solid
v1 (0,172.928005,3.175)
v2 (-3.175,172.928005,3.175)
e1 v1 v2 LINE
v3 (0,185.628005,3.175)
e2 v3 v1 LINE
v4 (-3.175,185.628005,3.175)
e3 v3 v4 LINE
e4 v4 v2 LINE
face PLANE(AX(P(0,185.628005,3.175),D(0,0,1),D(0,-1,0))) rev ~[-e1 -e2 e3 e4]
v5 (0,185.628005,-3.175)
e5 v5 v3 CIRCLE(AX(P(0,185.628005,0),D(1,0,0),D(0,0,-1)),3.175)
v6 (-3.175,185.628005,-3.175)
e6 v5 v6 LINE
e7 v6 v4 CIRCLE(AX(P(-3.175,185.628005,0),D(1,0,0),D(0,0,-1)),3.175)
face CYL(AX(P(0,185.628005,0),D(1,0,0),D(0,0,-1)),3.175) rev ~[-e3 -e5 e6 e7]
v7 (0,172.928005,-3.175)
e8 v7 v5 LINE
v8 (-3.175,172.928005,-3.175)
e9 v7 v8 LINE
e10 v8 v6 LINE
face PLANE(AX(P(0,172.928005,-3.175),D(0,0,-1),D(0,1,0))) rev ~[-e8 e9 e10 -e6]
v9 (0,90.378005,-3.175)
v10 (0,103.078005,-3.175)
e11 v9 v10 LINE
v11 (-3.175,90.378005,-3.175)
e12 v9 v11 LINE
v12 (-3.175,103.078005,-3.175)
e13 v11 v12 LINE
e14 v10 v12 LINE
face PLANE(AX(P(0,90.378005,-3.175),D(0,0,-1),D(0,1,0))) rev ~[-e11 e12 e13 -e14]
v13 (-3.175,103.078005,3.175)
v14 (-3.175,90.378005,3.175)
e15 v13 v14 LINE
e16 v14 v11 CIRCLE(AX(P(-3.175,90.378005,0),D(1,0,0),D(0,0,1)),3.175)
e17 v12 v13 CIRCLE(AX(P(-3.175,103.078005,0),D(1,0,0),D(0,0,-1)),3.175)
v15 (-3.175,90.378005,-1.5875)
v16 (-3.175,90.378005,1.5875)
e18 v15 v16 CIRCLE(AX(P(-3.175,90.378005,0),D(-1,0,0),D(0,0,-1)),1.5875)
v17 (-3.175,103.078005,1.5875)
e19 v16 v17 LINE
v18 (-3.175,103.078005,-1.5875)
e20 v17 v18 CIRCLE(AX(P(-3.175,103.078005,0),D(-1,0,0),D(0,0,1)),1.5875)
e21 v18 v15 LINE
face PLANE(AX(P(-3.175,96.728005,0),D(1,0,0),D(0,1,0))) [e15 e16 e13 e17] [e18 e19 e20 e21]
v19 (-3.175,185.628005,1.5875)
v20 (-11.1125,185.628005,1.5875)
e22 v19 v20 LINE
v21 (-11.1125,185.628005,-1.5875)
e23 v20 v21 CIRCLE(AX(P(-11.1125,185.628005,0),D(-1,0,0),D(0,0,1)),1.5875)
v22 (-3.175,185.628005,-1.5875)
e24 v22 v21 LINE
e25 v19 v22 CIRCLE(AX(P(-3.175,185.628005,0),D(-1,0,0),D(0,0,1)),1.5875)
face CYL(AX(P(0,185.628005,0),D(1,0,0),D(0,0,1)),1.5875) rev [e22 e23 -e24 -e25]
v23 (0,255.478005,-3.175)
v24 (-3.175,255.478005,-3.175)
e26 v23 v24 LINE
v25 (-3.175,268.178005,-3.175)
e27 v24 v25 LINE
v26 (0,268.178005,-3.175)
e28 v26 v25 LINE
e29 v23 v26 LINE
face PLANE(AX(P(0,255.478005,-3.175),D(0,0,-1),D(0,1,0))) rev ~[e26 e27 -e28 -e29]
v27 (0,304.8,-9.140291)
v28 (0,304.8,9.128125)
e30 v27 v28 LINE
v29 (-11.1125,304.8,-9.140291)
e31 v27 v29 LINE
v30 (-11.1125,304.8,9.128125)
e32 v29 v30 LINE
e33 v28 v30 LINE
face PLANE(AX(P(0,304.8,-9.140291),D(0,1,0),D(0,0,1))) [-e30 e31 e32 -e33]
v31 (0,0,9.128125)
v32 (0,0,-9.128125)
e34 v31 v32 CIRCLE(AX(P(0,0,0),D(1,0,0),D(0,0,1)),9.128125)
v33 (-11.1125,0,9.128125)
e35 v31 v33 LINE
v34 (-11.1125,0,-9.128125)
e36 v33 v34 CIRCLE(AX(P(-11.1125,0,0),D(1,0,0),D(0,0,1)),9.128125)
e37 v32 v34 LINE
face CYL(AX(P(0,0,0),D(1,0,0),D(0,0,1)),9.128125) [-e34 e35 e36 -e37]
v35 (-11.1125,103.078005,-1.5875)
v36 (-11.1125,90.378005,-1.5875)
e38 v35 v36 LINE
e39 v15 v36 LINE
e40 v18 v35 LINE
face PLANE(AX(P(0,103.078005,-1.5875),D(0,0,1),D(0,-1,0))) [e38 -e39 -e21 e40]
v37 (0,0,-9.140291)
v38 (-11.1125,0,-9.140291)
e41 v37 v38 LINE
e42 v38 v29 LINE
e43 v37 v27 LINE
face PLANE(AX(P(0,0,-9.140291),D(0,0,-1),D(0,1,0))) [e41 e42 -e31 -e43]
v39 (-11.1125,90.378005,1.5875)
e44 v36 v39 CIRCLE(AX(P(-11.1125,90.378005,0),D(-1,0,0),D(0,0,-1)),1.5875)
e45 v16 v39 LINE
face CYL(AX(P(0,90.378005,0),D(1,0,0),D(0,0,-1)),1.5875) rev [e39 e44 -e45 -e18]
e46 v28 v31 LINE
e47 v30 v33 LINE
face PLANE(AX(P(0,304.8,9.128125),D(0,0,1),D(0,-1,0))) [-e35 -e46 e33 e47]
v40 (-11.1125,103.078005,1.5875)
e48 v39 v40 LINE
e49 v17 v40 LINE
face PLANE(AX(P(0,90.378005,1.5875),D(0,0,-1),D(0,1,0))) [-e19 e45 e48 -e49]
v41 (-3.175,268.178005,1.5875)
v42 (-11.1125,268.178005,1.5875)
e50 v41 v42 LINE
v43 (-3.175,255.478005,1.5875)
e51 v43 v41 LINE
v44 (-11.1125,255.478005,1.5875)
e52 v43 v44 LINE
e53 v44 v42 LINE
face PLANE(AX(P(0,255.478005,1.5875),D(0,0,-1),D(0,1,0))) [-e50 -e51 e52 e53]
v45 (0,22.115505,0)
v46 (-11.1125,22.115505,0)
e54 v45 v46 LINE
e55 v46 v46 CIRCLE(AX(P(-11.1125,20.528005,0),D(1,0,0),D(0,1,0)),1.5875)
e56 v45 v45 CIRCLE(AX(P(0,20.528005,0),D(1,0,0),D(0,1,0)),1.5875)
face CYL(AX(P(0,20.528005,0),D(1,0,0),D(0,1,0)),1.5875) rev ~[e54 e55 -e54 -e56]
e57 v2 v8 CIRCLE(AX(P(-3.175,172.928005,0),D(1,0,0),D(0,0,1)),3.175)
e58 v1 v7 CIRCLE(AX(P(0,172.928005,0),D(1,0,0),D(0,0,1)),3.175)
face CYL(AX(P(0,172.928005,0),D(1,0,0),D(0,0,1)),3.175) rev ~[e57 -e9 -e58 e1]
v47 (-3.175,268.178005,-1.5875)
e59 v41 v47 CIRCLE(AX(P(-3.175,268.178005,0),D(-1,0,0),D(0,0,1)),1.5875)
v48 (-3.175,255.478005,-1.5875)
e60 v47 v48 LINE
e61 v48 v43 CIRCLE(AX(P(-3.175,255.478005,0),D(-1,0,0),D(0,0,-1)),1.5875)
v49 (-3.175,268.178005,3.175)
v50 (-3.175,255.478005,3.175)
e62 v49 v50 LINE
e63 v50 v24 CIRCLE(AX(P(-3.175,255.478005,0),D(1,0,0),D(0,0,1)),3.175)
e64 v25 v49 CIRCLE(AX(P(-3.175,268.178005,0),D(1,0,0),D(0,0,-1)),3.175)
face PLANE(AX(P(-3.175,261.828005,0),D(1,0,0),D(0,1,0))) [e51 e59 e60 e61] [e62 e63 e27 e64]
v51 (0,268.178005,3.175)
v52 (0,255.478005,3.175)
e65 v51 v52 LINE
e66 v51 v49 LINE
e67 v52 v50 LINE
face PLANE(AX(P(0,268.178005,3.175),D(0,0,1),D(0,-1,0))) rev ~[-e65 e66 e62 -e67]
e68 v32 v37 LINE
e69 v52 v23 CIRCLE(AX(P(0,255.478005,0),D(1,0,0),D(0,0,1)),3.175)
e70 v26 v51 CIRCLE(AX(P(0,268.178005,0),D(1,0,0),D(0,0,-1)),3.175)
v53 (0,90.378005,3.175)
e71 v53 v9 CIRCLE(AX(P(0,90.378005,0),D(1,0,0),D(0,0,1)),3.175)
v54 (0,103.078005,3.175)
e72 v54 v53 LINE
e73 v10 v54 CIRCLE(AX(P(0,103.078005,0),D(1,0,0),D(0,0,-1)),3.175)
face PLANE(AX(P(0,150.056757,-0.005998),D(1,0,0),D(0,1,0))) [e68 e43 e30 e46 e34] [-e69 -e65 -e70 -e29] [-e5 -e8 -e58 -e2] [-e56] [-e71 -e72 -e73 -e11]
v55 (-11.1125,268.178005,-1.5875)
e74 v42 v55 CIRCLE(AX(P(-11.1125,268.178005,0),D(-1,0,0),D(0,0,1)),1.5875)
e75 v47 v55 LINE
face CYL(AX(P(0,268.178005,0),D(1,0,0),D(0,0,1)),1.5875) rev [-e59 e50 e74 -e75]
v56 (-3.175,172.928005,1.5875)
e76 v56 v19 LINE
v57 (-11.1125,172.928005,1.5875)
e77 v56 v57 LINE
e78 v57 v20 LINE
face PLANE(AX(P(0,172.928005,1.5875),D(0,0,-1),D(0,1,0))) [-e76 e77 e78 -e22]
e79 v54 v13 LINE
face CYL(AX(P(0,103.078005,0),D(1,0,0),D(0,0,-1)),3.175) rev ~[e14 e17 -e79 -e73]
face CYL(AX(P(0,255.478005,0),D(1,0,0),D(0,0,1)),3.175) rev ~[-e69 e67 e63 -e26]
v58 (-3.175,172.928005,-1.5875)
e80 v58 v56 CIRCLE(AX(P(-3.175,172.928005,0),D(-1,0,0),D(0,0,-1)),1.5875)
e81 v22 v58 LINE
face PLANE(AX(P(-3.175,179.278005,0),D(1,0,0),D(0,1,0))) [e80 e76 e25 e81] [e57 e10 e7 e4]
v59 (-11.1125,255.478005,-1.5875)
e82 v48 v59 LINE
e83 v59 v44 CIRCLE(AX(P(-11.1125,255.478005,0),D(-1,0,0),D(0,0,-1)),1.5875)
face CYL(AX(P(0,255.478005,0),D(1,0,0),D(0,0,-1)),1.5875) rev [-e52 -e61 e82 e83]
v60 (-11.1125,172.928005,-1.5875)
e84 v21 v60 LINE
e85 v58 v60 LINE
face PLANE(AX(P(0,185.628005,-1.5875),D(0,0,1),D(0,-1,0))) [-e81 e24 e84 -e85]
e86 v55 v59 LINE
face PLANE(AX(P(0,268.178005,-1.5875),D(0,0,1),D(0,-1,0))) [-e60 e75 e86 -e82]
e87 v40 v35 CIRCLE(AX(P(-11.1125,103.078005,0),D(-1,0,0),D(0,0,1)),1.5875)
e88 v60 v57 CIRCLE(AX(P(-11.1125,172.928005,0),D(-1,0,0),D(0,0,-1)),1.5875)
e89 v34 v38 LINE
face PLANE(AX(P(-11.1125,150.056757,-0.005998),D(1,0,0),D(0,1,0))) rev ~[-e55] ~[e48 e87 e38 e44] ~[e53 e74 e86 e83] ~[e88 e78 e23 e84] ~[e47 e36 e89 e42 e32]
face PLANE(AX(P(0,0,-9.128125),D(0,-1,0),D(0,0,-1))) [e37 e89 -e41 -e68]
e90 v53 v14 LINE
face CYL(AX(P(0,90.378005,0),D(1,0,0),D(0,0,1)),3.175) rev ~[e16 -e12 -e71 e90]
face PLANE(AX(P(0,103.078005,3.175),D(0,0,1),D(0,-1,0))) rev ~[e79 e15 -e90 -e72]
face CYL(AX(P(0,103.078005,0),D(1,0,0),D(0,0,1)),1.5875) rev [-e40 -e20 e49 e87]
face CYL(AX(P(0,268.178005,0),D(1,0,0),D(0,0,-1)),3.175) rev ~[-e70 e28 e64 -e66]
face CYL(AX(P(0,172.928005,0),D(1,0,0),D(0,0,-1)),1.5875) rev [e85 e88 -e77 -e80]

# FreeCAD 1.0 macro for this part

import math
import FreeCAD as App
import Part
import Sketcher
Q = App.Units.Quantity

doc = App.newDocument("Part")
params = doc.addObject("Spreadsheet::Sheet", "Params")
for row, (alias, value) in enumerate([
    ("sketch1_width", "12 in"),
    ("sketch1_diameter", "0.125 in"),
    ("sketch1_width2", "0.5 in"),
    ("sketch1_radius", "0.359375 in"),
    ("pad1_length", "0.4375 in"),
    ("sketch2_width", "0.5 in"),
    ("sketch2_radius", "0.125 in"),
    ("sketch2_radius2", "0.0625 in"),
    ("pocket1_length", "0.125 in"),
], start=1):
    params.set(f"A{row}", alias)
    params.set(f"B{row}", "=" + value)
    params.setAlias(f"B{row}", alias)

body = doc.addObject("PartDesign::Body", "Body")

# Sketch on YZ plane
sketch1 = body.newObject("Sketcher::SketchObject", "Sketch")
sketch1.AttachmentSupport = (doc.getObject("YZ_Plane"), [""])
sketch1.MapMode = "FlatFace"
sketch1.addGeometry([
    Part.LineSegment(App.Vector(304.8, 9.128, 0), App.Vector(0, 9.128, 0)),  # 0
    Part.ArcOfCircle(Part.Circle(App.Vector(0, 0, 0), App.Vector(0, 0, 1), 9.128), math.radians(90), math.radians(270)),  # 1
    Part.LineSegment(App.Vector(0, -9.128, 0), App.Vector(0, -9.14, 0)),  # 2
    Part.LineSegment(App.Vector(0, -9.14, 0), App.Vector(304.8, -9.14, 0)),  # 3
    Part.LineSegment(App.Vector(304.8, -9.14, 0), App.Vector(304.8, 9.128, 0)),  # 4
    Part.Circle(App.Vector(20.528, 0, 0), App.Vector(0, 0, 1), 1.587),  # 5
    Part.ArcOfCircle(Part.Circle(App.Vector(103.078, 0, 0), App.Vector(0, 0, 1), 1.587), math.radians(-90), math.radians(90)),  # 6
    Part.LineSegment(App.Vector(103.078, -1.587, 0), App.Vector(90.378, -1.587, 0)),  # 7
    Part.ArcOfCircle(Part.Circle(App.Vector(90.378, 0, 0), App.Vector(0, 0, 1), 1.587), math.radians(90), math.radians(270)),  # 8
    Part.LineSegment(App.Vector(90.378, 1.587, 0), App.Vector(103.078, 1.587, 0)),  # 9
    Part.ArcOfCircle(Part.Circle(App.Vector(185.628, 0, 0), App.Vector(0, 0, 1), 1.587), math.radians(-90), math.radians(90)),  # 10
    Part.LineSegment(App.Vector(185.628, -1.587, 0), App.Vector(172.928, -1.587, 0)),  # 11
    Part.ArcOfCircle(Part.Circle(App.Vector(172.928, 0, 0), App.Vector(0, 0, 1), 1.587), math.radians(90), math.radians(270)),  # 12
    Part.LineSegment(App.Vector(172.928, 1.587, 0), App.Vector(185.628, 1.587, 0)),  # 13
    Part.ArcOfCircle(Part.Circle(App.Vector(268.178, 0, 0), App.Vector(0, 0, 1), 1.587), math.radians(-90), math.radians(90)),  # 14
    Part.LineSegment(App.Vector(268.178, -1.587, 0), App.Vector(255.478, -1.587, 0)),  # 15
    Part.ArcOfCircle(Part.Circle(App.Vector(255.478, 0, 0), App.Vector(0, 0, 1), 1.587), math.radians(90), math.radians(270)),  # 16
    Part.LineSegment(App.Vector(255.478, 1.587, 0), App.Vector(268.178, 1.587, 0)),  # 17
], False)
sketch1.addConstraint([
    Sketcher.Constraint("Tangent", 0, 2, 1, 1),
    Sketcher.Constraint("Coincident", 1, 2, 2, 1),
    Sketcher.Constraint("Coincident", 2, 2, 3, 1),
    Sketcher.Constraint("Coincident", 3, 2, 4, 1),
    Sketcher.Constraint("Coincident", 4, 2, 0, 1),
    Sketcher.Constraint("Tangent", 6, 1, 7, 1),
    Sketcher.Constraint("Tangent", 7, 2, 8, 2),
    Sketcher.Constraint("Tangent", 8, 1, 9, 1),
    Sketcher.Constraint("Tangent", 9, 2, 6, 2),
    Sketcher.Constraint("Tangent", 10, 1, 11, 1),
    Sketcher.Constraint("Tangent", 11, 2, 12, 2),
    Sketcher.Constraint("Tangent", 12, 1, 13, 1),
    Sketcher.Constraint("Tangent", 13, 2, 10, 2),
    Sketcher.Constraint("Tangent", 14, 1, 15, 1),
    Sketcher.Constraint("Tangent", 15, 2, 16, 2),
    Sketcher.Constraint("Tangent", 16, 1, 17, 1),
    Sketcher.Constraint("Tangent", 17, 2, 14, 2),
    Sketcher.Constraint("Horizontal", 0),
    Sketcher.Constraint("Vertical", 2),
    Sketcher.Constraint("Horizontal", 3),
    Sketcher.Constraint("Vertical", 4),
    Sketcher.Constraint("Horizontal", 7),
    Sketcher.Constraint("Horizontal", 9),
    Sketcher.Constraint("Horizontal", 11),
    Sketcher.Constraint("Horizontal", 13),
    Sketcher.Constraint("Horizontal", 15),
    Sketcher.Constraint("Horizontal", 17),
    Sketcher.Constraint("Coincident", 1, 3, -1, 1),
    Sketcher.Constraint("Equal", 5, 6),
    Sketcher.Constraint("Equal", 8, 10),
    Sketcher.Constraint("Equal", 12, 14),
    Sketcher.Constraint("PointOnObject", 5, 3, -1),
    Sketcher.Constraint("PointOnObject", 6, 3, -1),
    Sketcher.Constraint("PointOnObject", 10, 3, -1),
    Sketcher.Constraint("PointOnObject", 14, 3, -1),
    Sketcher.Constraint("PointOnObject", 1, 2, -2),
    Sketcher.Constraint("Equal", 9, 11),
    Sketcher.Constraint("Equal", 13, 15),
    Sketcher.Constraint("DistanceX", 0, 2, 0, 1, Q("12 in")),
    Sketcher.Constraint("Diameter", 5, Q("0.125 in")),
    Sketcher.Constraint("DistanceX", 7, 2, 7, 1, Q("0.5 in")),
    Sketcher.Constraint("Radius", 1, Q("0.359375 in")),
    Sketcher.Constraint("DistanceX", 5, 3, 12, 3, Q("6 in")),
    Sketcher.Constraint("DistanceX", 8, 3, 14, 3, Q("7 in")),
    Sketcher.Constraint("DistanceX", 5, 3, 6, 3, Q("3.25 in")),
    Sketcher.Constraint("DistanceY", 2, 2, 2, 1, Q("0.012166 mm")),
    Sketcher.Constraint("DistanceX", -1, 1, 5, 3, Q("20.528005 mm")),
])
sketch1.setExpression("Constraints[38]", "Params.sketch1_width")
sketch1.setExpression("Constraints[39]", "Params.sketch1_diameter")
sketch1.setExpression("Constraints[40]", "Params.sketch1_width2")
sketch1.setExpression("Constraints[41]", "Params.sketch1_radius")
pad1 = body.newObject("PartDesign::Pad", "Pad")
pad1.Profile = sketch1
pad1.setExpression("Length", "Params.pad1_length")
pad1.Reversed = True

# Sketch on YZ plane
sketch2 = body.newObject("Sketcher::SketchObject", "Sketch001")
sketch2.AttachmentSupport = (doc.getObject("YZ_Plane"), [""])
sketch2.MapMode = "FlatFace"
sketch2.addGeometry([
    Part.ArcOfCircle(Part.Circle(App.Vector(90.4, 0, 0), App.Vector(0, 0, 1), 3.2), math.radians(90), math.radians(270)),  # 0
    Part.LineSegment(App.Vector(90.4, -3.2, 0), App.Vector(103.1, -3.2, 0)),  # 1
    Part.ArcOfCircle(Part.Circle(App.Vector(103.1, 0, 0), App.Vector(0, 0, 1), 3.2), math.radians(-90), math.radians(90)),  # 2
    Part.LineSegment(App.Vector(103.1, 3.2, 0), App.Vector(90.4, 3.2, 0)),  # 3
    Part.ArcOfCircle(Part.Circle(App.Vector(103.1, 0, 0), App.Vector(0, 0, 1), 1.6), math.radians(-90), math.radians(90)),  # 4
    Part.LineSegment(App.Vector(103.1, -1.6, 0), App.Vector(90.4, -1.6, 0)),  # 5
    Part.ArcOfCircle(Part.Circle(App.Vector(90.4, 0, 0), App.Vector(0, 0, 1), 1.6), math.radians(90), math.radians(270)),  # 6
    Part.LineSegment(App.Vector(90.4, 1.6, 0), App.Vector(103.1, 1.6, 0)),  # 7
    Part.ArcOfCircle(Part.Circle(App.Vector(172.9, 0, 0), App.Vector(0, 0, 1), 3.2), math.radians(90), math.radians(270)),  # 8
    Part.LineSegment(App.Vector(172.9, -3.2, 0), App.Vector(185.6, -3.2, 0)),  # 9
    Part.ArcOfCircle(Part.Circle(App.Vector(185.6, 0, 0), App.Vector(0, 0, 1), 3.2), math.radians(-90), math.radians(90)),  # 10
    Part.LineSegment(App.Vector(185.6, 3.2, 0), App.Vector(172.9, 3.2, 0)),  # 11
    Part.ArcOfCircle(Part.Circle(App.Vector(185.6, 0, 0), App.Vector(0, 0, 1), 1.6), math.radians(-90), math.radians(90)),  # 12
    Part.LineSegment(App.Vector(185.6, -1.6, 0), App.Vector(172.9, -1.6, 0)),  # 13
    Part.ArcOfCircle(Part.Circle(App.Vector(172.9, 0, 0), App.Vector(0, 0, 1), 1.6), math.radians(90), math.radians(270)),  # 14
    Part.LineSegment(App.Vector(172.9, 1.6, 0), App.Vector(185.6, 1.6, 0)),  # 15
    Part.ArcOfCircle(Part.Circle(App.Vector(255.5, 0, 0), App.Vector(0, 0, 1), 3.2), math.radians(90), math.radians(270)),  # 16
    Part.LineSegment(App.Vector(255.5, -3.2, 0), App.Vector(268.2, -3.2, 0)),  # 17
    Part.ArcOfCircle(Part.Circle(App.Vector(268.2, 0, 0), App.Vector(0, 0, 1), 3.2), math.radians(-90), math.radians(90)),  # 18
    Part.LineSegment(App.Vector(268.2, 3.2, 0), App.Vector(255.5, 3.2, 0)),  # 19
    Part.ArcOfCircle(Part.Circle(App.Vector(268.2, 0, 0), App.Vector(0, 0, 1), 1.6), math.radians(-90), math.radians(90)),  # 20
    Part.LineSegment(App.Vector(268.2, -1.6, 0), App.Vector(255.5, -1.6, 0)),  # 21
    Part.ArcOfCircle(Part.Circle(App.Vector(255.5, 0, 0), App.Vector(0, 0, 1), 1.6), math.radians(90), math.radians(270)),  # 22
    Part.LineSegment(App.Vector(255.5, 1.6, 0), App.Vector(268.2, 1.6, 0)),  # 23
], False)
sketch2.addConstraint([
    Sketcher.Constraint("Tangent", 0, 2, 1, 1),
    Sketcher.Constraint("Tangent", 1, 2, 2, 1),
    Sketcher.Constraint("Tangent", 2, 2, 3, 1),
    Sketcher.Constraint("Tangent", 3, 2, 0, 1),
    Sketcher.Constraint("Tangent", 4, 1, 5, 1),
    Sketcher.Constraint("Tangent", 5, 2, 6, 2),
    Sketcher.Constraint("Tangent", 6, 1, 7, 1),
    Sketcher.Constraint("Tangent", 7, 2, 4, 2),
    Sketcher.Constraint("Tangent", 8, 2, 9, 1),
    Sketcher.Constraint("Tangent", 9, 2, 10, 1),
    Sketcher.Constraint("Tangent", 10, 2, 11, 1),
    Sketcher.Constraint("Tangent", 11, 2, 8, 1),
    Sketcher.Constraint("Tangent", 12, 1, 13, 1),
    Sketcher.Constraint("Tangent", 13, 2, 14, 2),
    Sketcher.Constraint("Tangent", 14, 1, 15, 1),
    Sketcher.Constraint("Tangent", 15, 2, 12, 2),
    Sketcher.Constraint("Tangent", 16, 2, 17, 1),
    Sketcher.Constraint("Tangent", 17, 2, 18, 1),
    Sketcher.Constraint("Tangent", 18, 2, 19, 1),
    Sketcher.Constraint("Tangent", 19, 2, 16, 1),
    Sketcher.Constraint("Tangent", 20, 1, 21, 1),
    Sketcher.Constraint("Tangent", 21, 2, 22, 2),
    Sketcher.Constraint("Tangent", 22, 1, 23, 1),
    Sketcher.Constraint("Tangent", 23, 2, 20, 2),
    Sketcher.Constraint("Horizontal", 1),
    Sketcher.Constraint("Horizontal", 3),
    Sketcher.Constraint("Horizontal", 5),
    Sketcher.Constraint("Horizontal", 7),
    Sketcher.Constraint("Horizontal", 9),
    Sketcher.Constraint("Horizontal", 11),
    Sketcher.Constraint("Horizontal", 13),
    Sketcher.Constraint("Horizontal", 15),
    Sketcher.Constraint("Horizontal", 17),
    Sketcher.Constraint("Horizontal", 19),
    Sketcher.Constraint("Horizontal", 21),
    Sketcher.Constraint("Horizontal", 23),
    Sketcher.Constraint("Coincident", 4, 3, 2, 3),
    Sketcher.Constraint("Coincident", 12, 3, 10, 3),
    Sketcher.Constraint("Coincident", 20, 3, 18, 3),
    Sketcher.Constraint("Equal", 2, 8),
    Sketcher.Constraint("Equal", 6, 12),
    Sketcher.Constraint("Equal", 10, 16),
    Sketcher.Constraint("Equal", 14, 20),
    Sketcher.Constraint("PointOnObject", 0, 3, -1),
    Sketcher.Constraint("PointOnObject", 8, 3, -1),
    Sketcher.Constraint("PointOnObject", 16, 3, -1),
    Sketcher.Constraint("Vertical", 6, 3, 0, 2),
    Sketcher.Constraint("Vertical", 14, 3, 8, 2),
    Sketcher.Constraint("Vertical", 22, 3, 16, 2),
    Sketcher.Constraint("Equal", 7, 9),
    Sketcher.Constraint("Equal", 15, 17),
    Sketcher.Constraint("DistanceX", 1, 1, 1, 2, Q("0.5 in")),
    Sketcher.Constraint("Radius", 0, Q("0.125 in")),
    Sketcher.Constraint("Radius", 4, Q("0.0625 in")),
    Sketcher.Constraint("DistanceX", 2, 3, 16, 3, Q("6 in")),
    Sketcher.Constraint("DistanceX", 2, 3, 8, 3, Q("2.75 in")),
    Sketcher.Constraint("DistanceX", -1, 1, 0, 3, Q("90.378005 mm")),
])
sketch2.setExpression("Constraints[51]", "Params.sketch2_width")
sketch2.setExpression("Constraints[52]", "Params.sketch2_radius")
sketch2.setExpression("Constraints[53]", "Params.sketch2_radius2")
pocket1 = body.newObject("PartDesign::Pocket", "Pocket")
pocket1.Profile = sketch2
pocket1.setExpression("Length", "Params.pocket1_length")

doc.recompute()
